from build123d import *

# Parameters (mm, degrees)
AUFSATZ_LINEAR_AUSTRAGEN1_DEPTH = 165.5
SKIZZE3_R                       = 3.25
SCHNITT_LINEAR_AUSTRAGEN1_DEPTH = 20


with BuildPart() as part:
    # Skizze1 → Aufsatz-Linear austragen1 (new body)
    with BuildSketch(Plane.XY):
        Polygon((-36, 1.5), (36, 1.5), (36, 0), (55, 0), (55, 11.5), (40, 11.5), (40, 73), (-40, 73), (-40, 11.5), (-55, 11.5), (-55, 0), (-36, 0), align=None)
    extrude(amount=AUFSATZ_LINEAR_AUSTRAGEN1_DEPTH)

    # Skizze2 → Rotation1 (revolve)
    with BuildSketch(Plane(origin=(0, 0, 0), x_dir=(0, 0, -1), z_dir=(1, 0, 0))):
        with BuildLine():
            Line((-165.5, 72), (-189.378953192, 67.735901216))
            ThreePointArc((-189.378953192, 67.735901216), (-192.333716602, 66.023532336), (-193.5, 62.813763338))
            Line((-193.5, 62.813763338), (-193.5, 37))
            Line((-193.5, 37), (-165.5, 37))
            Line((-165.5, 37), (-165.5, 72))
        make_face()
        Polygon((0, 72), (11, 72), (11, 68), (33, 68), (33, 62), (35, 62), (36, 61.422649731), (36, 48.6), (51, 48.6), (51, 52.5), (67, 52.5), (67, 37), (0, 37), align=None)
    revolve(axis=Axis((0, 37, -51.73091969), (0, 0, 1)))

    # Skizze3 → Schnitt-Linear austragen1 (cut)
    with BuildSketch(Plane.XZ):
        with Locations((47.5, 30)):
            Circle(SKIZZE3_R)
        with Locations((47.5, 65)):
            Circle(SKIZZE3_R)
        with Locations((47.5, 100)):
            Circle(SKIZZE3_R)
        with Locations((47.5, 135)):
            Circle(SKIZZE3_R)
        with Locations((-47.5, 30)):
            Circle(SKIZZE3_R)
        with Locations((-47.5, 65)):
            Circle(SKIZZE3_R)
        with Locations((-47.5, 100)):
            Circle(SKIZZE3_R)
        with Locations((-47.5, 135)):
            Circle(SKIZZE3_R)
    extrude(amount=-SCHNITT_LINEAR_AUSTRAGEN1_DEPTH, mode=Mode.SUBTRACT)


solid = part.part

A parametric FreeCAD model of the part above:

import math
import FreeCAD as App
import Part
import Sketcher
Q = App.Units.Quantity


def add_polygon(sketch, points):
    """Adds a closed chain of lines whose ends are joined by coincident constraints."""
    first, n = sketch.GeometryCount, len(points)
    for a, b in zip(points, points[1:] + points[:1]):
        sketch.addGeometry(Part.LineSegment(App.Vector(*a, 0), App.Vector(*b, 0)), False)
    for i in range(n):
        sketch.addConstraint(Sketcher.Constraint("Coincident", first + i, 2, first + (i + 1) % n, 1))

doc = App.newDocument("Part")
body = doc.addObject("PartDesign::Body", "Body")

# Sketch on XY plane
sketch1 = body.newObject("Sketcher::SketchObject", "Sketch")
sketch1.AttachmentSupport = (doc.getObject("XY_Plane"), [""])
sketch1.MapMode = "FlatFace"
add_polygon(sketch1, [(-36, 1.5), (36, 1.5), (36, 0), (55, 0), (55, 11.5), (40, 11.5), (40, 73), (-40, 73), (-40, 11.5), (-55, 11.5), (-55, 0), (-36, 0)])  # lines 0-11
sketch1.addConstraint([
    Sketcher.Constraint("Horizontal", 0),
    Sketcher.Constraint("Vertical", 1),
    Sketcher.Constraint("Horizontal", 2),
    Sketcher.Constraint("Vertical", 3),
    Sketcher.Constraint("Horizontal", 4),
    Sketcher.Constraint("Vertical", 5),
    Sketcher.Constraint("Horizontal", 6),
    Sketcher.Constraint("Vertical", 7),
    Sketcher.Constraint("Horizontal", 8),
    Sketcher.Constraint("Vertical", 9),
    Sketcher.Constraint("Horizontal", 10),
    Sketcher.Constraint("Vertical", 11),
    Sketcher.Constraint("Symmetric", 2, 2, 9, 2, -1, 1),
    Sketcher.Constraint("Symmetric", 4, 2, 7, 2, -2),
    Sketcher.Constraint("Symmetric", 1, 2, 10, 2, -2),
    Sketcher.Constraint("DistanceX", 0, 1, 0, 2, Q("72 mm")),
    Sketcher.Constraint("DistanceX", 2, 1, 2, 2, Q("19 mm")),
    Sketcher.Constraint("DistanceX", 4, 2, 4, 1, Q("15 mm")),
    Sketcher.Constraint("DistanceY", 1, 2, 1, 1, Q("1.5 mm")),
    Sketcher.Constraint("DistanceY", 3, 1, 3, 2, Q("11.5 mm")),
    Sketcher.Constraint("DistanceY", 5, 1, 5, 2, Q("61.5 mm")),
])
pad1 = body.newObject("PartDesign::Pad", "Pad")
pad1.Profile = sketch1
pad1.Length = 165.5

# Sketch on YZ plane
sketch2 = body.newObject("Sketcher::SketchObject", "Sketch001")
sketch2.AttachmentSupport = (doc.getObject("YZ_Plane"), [""])
sketch2.MapMode = "FlatFace"
sketch2.addGeometry(Part.LineSegment(App.Vector(72, 165.5, 0), App.Vector(67.7, 189.4, 0)), False)  # 0
sketch2.addGeometry(Part.ArcOfCircle(Part.Circle(App.Vector(62.8, 188.5, 0), App.Vector(0, 0, 1), 5), math.radians(10), math.radians(90)), False)  # 1
sketch2.addGeometry(Part.LineSegment(App.Vector(62.8, 193.5, 0), App.Vector(37, 193.5, 0)), False)  # 2
sketch2.addGeometry(Part.LineSegment(App.Vector(37, 193.5, 0), App.Vector(37, 165.5, 0)), False)  # 3
sketch2.addGeometry(Part.LineSegment(App.Vector(37, 165.5, 0), App.Vector(72, 165.5, 0)), False)  # 4
add_polygon(sketch2, [(72, -11), (72, 0), (37, 0), (37, -67), (52.5, -67), (52.5, -51), (48.6, -51), (48.6, -36), (61.4, -36), (62, -35), (62, -33), (68, -33), (68, -11)])  # lines 5-17
sketch2.addGeometry(Part.LineSegment(App.Vector(37, -67, 0), App.Vector(37, 193.5, 0)), True)  # axis
sketch2.addConstraint([
    Sketcher.Constraint("Tangent", 0, 2, 1, 1),
    Sketcher.Constraint("Tangent", 1, 2, 2, 1),
    Sketcher.Constraint("Coincident", 2, 2, 3, 1),
    Sketcher.Constraint("Coincident", 3, 2, 4, 1),
    Sketcher.Constraint("Coincident", 4, 2, 0, 1),
    Sketcher.Constraint("Horizontal", 2),
    Sketcher.Constraint("Vertical", 3),
    Sketcher.Constraint("Horizontal", 4),
    Sketcher.Constraint("Vertical", 5),
    Sketcher.Constraint("Horizontal", 6),
    Sketcher.Constraint("Vertical", 7),
    Sketcher.Constraint("Horizontal", 8),
    Sketcher.Constraint("Vertical", 9),
    Sketcher.Constraint("Horizontal", 10),
    Sketcher.Constraint("Vertical", 11),
    Sketcher.Constraint("Horizontal", 12),
    Sketcher.Constraint("Vertical", 14),
    Sketcher.Constraint("Horizontal", 15),
    Sketcher.Constraint("Vertical", 16),
    Sketcher.Constraint("Horizontal", 17),
    Sketcher.Constraint("Vertical", 18),
    Sketcher.Constraint("Coincident", 18, 1, 7, 2),
    Sketcher.Constraint("Coincident", 18, 2, 2, 2),
    Sketcher.Constraint("PointOnObject", 5, 2, -1),
    Sketcher.Constraint("Vertical", 4, 2, 5, 2),
    Sketcher.Constraint("Radius", 1, Q("5 mm")),
    Sketcher.Constraint("DistanceX", 4, 1, 4, 2, Q("35 mm")),
    Sketcher.Constraint("DistanceX", 15, 1, 15, 2, Q("6 mm")),
    Sketcher.Constraint("DistanceX", 17, 1, 17, 2, Q("4 mm")),
    Sketcher.Constraint("DistanceY", 3, 2, 3, 1, Q("28 mm")),
    Sketcher.Constraint("DistanceY", 5, 1, 5, 2, Q("11 mm")),
    Sketcher.Constraint("DistanceY", 7, 2, 7, 1, Q("67 mm")),
    Sketcher.Constraint("DistanceY", 9, 1, 9, 2, Q("16 mm")),
    Sketcher.Constraint("DistanceY", 11, 1, 11, 2, Q("15 mm")),
    Sketcher.Constraint("DistanceY", 14, 1, 14, 2, Q("2 mm")),
    Sketcher.Constraint("DistanceY", 16, 1, 16, 2, Q("22 mm")),
    Sketcher.Constraint("Angle", 13, Q("60 deg")),
    Sketcher.Constraint("DistanceX", 8, 1, 8, 2, Q("15.5 mm")),
    Sketcher.Constraint("DistanceX", 10, 2, 10, 1, Q("3.9 mm")),
    Sketcher.Constraint("DistanceY", 18, 1, 18, 2, Q("260.5 mm")),
    Sketcher.Constraint("DistanceX", -1, 1, 2, 2, Q("37 mm")),
    Sketcher.Constraint("DistanceX", -1, 1, 0, 2, Q("67.735901 mm")),
])
revolution = body.newObject("PartDesign::Revolution", "Revolution")
revolution.Profile = sketch2
revolution.ReferenceAxis = (sketch2, ["Axis0"])
revolution.Angle = 360

# Sketch on XZ plane
sketch3 = body.newObject("Sketcher::SketchObject", "Sketch002")
sketch3.AttachmentSupport = (doc.getObject("XZ_Plane"), [""])
sketch3.MapMode = "FlatFace"
sketch3.addGeometry([
    Part.Circle(App.Vector(47.5, 30, 0), App.Vector(0, 0, 1), 3.2),  # 0
    Part.Circle(App.Vector(47.5, 65, 0), App.Vector(0, 0, 1), 3.2),  # 1
    Part.Circle(App.Vector(47.5, 100, 0), App.Vector(0, 0, 1), 3.2),  # 2
    Part.Circle(App.Vector(47.5, 135, 0), App.Vector(0, 0, 1), 3.2),  # 3
    Part.Circle(App.Vector(-47.5, 30, 0), App.Vector(0, 0, 1), 3.2),  # 4
    Part.Circle(App.Vector(-47.5, 65, 0), App.Vector(0, 0, 1), 3.2),  # 5
    Part.Circle(App.Vector(-47.5, 100, 0), App.Vector(0, 0, 1), 3.2),  # 6
    Part.Circle(App.Vector(-47.5, 135, 0), App.Vector(0, 0, 1), 3.2),  # 7
], False)
sketch3.addConstraint([
    Sketcher.Constraint("Equal", 0, 1),
    Sketcher.Constraint("Equal", 1, 2),
    Sketcher.Constraint("Equal", 2, 3),
    Sketcher.Constraint("Equal", 3, 4),
    Sketcher.Constraint("Equal", 4, 5),
    Sketcher.Constraint("Equal", 5, 6),
    Sketcher.Constraint("Equal", 6, 7),
    Sketcher.Constraint("Symmetric", 0, 3, 4, 3, -2),
    Sketcher.Constraint("Symmetric", 1, 3, 5, 3, -2),
    Sketcher.Constraint("Symmetric", 2, 3, 6, 3, -2),
    Sketcher.Constraint("Symmetric", 3, 3, 7, 3, -2),
    Sketcher.Constraint("Vertical", 0, 3, 1, 3),
    Sketcher.Constraint("Vertical", 1, 3, 2, 3),
    Sketcher.Constraint("Vertical", 2, 3, 3, 3),
    Sketcher.Constraint("Diameter", 0, Q("6.5 mm")),
    Sketcher.Constraint("DistanceY", -1, 1, 0, 3, Q("30 mm")),
    Sketcher.Constraint("DistanceY", -1, 1, 1, 3, Q("65 mm")),
    Sketcher.Constraint("DistanceY", -1, 1, 2, 3, Q("100 mm")),
    Sketcher.Constraint("DistanceY", -1, 1, 3, 3, Q("135 mm")),
    Sketcher.Constraint("DistanceX", 4, 3, 0, 3, Q("95 mm")),
])
pocket1 = body.newObject("PartDesign::Pocket", "Pocket")
pocket1.Profile = sketch3
pocket1.Length = 20

doc.recompute()
